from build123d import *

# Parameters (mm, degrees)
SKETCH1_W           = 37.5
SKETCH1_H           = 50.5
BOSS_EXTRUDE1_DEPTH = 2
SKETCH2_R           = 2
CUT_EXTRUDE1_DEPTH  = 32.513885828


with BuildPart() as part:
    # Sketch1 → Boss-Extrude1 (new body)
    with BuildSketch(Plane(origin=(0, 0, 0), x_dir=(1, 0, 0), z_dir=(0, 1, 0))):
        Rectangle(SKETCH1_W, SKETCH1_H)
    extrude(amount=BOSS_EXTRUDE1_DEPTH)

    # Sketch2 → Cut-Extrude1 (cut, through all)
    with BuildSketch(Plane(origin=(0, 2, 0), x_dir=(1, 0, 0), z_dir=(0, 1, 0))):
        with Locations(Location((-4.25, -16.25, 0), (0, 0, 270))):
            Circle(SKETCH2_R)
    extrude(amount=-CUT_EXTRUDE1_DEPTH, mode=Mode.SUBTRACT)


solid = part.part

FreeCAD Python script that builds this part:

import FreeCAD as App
import Part
import Sketcher
from FreeCAD import Vector


def add_polygon(sketch, points):
    """Adds a closed chain of lines whose ends are joined by coincident constraints."""
    first, n = sketch.GeometryCount, len(points)
    for a, b in zip(points, points[1:] + points[:1]):
        sketch.addGeometry(Part.LineSegment(App.Vector(*a, 0), App.Vector(*b, 0)), False)
    for i in range(n):
        sketch.addConstraint(Sketcher.Constraint("Coincident", first + i, 2, first + (i + 1) % n, 1))

doc = App.newDocument("Part")
body = doc.addObject("PartDesign::Body", "Body")

# Sketch on XZ plane
sketch1 = body.newObject("Sketcher::SketchObject", "Sketch")
sketch1.AttachmentSupport = (doc.getObject("XZ_Plane"), [""])
sketch1.MapMode = "FlatFace"
add_polygon(sketch1, [(-19, -25), (-19, 25), (19, 25), (19, -25)])  # lines 0-3
sketch1.addConstraint(Sketcher.Constraint("Vertical", 0))
sketch1.addConstraint(Sketcher.Constraint("Horizontal", 1))
sketch1.addConstraint(Sketcher.Constraint("Vertical", 2))
sketch1.addConstraint(Sketcher.Constraint("Horizontal", 3))
sketch1.addConstraint(Sketcher.Constraint("Symmetric", 0, 2, 2, 2, -1, 1))
sketch1.addConstraint(Sketcher.Constraint("DistanceX", 1, 1, 1, 2, 37.5))
sketch1.addConstraint(Sketcher.Constraint("DistanceY", 0, 1, 0, 2, 50.5))
pad1 = body.newObject("PartDesign::Pad", "Pad")
pad1.Profile = sketch1
pad1.Length = 2
pad1.Reversed = True

# Sketch on XZ plane
sketch2 = body.newObject("Sketcher::SketchObject", "Sketch001")
sketch2.AttachmentSupport = (doc.getObject("XZ_Plane"), [""])
sketch2.MapMode = "FlatFace"
sketch2.AttachmentOffset = App.Placement(Vector(0, 0, -2), App.Rotation())
sketch2.addGeometry(Part.Circle(Vector(-4.2, 16.2, 0), Vector(0, 0, 1), 2), False)
sketch2.addConstraint(Sketcher.Constraint("Diameter", 0, 4.0))
sketch2.addConstraint(Sketcher.Constraint("DistanceX", 0, 3, -1, 1, 4.25))
sketch2.addConstraint(Sketcher.Constraint("DistanceY", -1, 1, 0, 3, 16.25))
pocket1 = body.newObject("PartDesign::Pocket", "Pocket")
pocket1.Profile = sketch2
pocket1.Type = "ThroughAll"
pocket1.Reversed = True

doc.recompute()
